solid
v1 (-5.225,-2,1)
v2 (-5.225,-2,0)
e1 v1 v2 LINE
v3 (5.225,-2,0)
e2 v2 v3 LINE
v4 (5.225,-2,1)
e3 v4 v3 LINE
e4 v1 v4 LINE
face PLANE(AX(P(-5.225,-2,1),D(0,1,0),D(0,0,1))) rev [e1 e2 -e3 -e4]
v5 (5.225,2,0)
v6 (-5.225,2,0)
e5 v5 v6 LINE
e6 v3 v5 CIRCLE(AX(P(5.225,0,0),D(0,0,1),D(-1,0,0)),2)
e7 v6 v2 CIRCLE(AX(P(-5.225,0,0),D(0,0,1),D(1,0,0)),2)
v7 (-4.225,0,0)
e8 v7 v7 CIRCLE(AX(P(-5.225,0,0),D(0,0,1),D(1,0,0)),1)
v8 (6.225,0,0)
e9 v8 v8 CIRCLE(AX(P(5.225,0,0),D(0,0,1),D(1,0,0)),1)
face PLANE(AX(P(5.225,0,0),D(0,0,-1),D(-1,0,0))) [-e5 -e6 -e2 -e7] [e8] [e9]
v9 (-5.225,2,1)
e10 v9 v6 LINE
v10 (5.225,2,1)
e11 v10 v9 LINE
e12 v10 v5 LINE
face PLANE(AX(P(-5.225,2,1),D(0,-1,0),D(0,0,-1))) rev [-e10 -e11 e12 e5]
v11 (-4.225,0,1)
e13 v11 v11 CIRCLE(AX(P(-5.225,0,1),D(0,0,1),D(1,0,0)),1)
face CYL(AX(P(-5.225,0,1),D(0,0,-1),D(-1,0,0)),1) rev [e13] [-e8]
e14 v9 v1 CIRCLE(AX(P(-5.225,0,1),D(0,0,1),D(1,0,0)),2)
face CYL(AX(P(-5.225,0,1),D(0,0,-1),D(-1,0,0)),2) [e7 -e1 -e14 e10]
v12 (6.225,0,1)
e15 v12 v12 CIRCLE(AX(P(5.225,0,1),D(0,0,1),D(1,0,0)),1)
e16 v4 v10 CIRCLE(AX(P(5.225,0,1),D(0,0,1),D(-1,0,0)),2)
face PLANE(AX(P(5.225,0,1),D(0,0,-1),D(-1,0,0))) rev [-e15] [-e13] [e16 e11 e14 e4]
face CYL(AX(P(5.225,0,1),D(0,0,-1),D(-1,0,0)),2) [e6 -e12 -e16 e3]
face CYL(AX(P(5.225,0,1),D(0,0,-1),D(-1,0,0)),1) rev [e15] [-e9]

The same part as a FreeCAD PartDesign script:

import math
import FreeCAD as App
import Part
import Sketcher
from FreeCAD import Vector

doc = App.newDocument("Part")
body = doc.addObject("PartDesign::Body", "Body")

# Sketch on XY plane
sketch1 = doc.addObject("Sketcher::SketchObject", "Sketch")
body.addObject(sketch1)
sketch1.AttachmentSupport = (doc.XY_Plane, [""])
sketch1.MapMode = "FlatFace"
sketch1.addGeometry([
    Part.LineSegment(Vector(5.2, 2, 0), Vector(-5.2, 2, 0)),  # 0
    Part.ArcOfCircle(Part.Circle(Vector(-5.2, 0, 0), Vector(0, 0, 1), 2), math.radians(90), math.radians(270)),  # 1
    Part.LineSegment(Vector(-5.2, -2, 0), Vector(5.2, -2, 0)),  # 2
    Part.ArcOfCircle(Part.Circle(Vector(5.2, 0, 0), Vector(0, 0, 1), 2), math.radians(-90), math.radians(90)),  # 3
    Part.Circle(Vector(5.2, 0, 0), Vector(0, 0, 1), 1),  # 4
    Part.Circle(Vector(-5.2, 0, 0), Vector(0, 0, 1), 1),  # 5
], False)
sketch1.addConstraint([
    Sketcher.Constraint("Tangent", 0, 2, 1, 1),
    Sketcher.Constraint("Tangent", 1, 2, 2, 1),
    Sketcher.Constraint("Tangent", 2, 2, 3, 1),
    Sketcher.Constraint("Tangent", 3, 2, 0, 1),
    Sketcher.Constraint("Horizontal", 0),
    Sketcher.Constraint("Horizontal", 2),
    Sketcher.Constraint("Coincident", 4, 3, 3, 3),
    Sketcher.Constraint("Coincident", 5, 3, 1, 3),
    Sketcher.Constraint("Equal", 4, 5),
    Sketcher.Constraint("Symmetric", 1, 3, 3, 3, -1, 1),
    Sketcher.Constraint("Diameter", 4, 2.0),
    Sketcher.Constraint("Radius", 1, 2.0),
    Sketcher.Constraint("DistanceX", 0, 2, 0, 1, 10.45),
])
pad1 = doc.addObject("PartDesign::Pad", "Pad")
body.addObject(pad1)
pad1.Profile = sketch1
pad1.Length = 1

doc.recompute()
